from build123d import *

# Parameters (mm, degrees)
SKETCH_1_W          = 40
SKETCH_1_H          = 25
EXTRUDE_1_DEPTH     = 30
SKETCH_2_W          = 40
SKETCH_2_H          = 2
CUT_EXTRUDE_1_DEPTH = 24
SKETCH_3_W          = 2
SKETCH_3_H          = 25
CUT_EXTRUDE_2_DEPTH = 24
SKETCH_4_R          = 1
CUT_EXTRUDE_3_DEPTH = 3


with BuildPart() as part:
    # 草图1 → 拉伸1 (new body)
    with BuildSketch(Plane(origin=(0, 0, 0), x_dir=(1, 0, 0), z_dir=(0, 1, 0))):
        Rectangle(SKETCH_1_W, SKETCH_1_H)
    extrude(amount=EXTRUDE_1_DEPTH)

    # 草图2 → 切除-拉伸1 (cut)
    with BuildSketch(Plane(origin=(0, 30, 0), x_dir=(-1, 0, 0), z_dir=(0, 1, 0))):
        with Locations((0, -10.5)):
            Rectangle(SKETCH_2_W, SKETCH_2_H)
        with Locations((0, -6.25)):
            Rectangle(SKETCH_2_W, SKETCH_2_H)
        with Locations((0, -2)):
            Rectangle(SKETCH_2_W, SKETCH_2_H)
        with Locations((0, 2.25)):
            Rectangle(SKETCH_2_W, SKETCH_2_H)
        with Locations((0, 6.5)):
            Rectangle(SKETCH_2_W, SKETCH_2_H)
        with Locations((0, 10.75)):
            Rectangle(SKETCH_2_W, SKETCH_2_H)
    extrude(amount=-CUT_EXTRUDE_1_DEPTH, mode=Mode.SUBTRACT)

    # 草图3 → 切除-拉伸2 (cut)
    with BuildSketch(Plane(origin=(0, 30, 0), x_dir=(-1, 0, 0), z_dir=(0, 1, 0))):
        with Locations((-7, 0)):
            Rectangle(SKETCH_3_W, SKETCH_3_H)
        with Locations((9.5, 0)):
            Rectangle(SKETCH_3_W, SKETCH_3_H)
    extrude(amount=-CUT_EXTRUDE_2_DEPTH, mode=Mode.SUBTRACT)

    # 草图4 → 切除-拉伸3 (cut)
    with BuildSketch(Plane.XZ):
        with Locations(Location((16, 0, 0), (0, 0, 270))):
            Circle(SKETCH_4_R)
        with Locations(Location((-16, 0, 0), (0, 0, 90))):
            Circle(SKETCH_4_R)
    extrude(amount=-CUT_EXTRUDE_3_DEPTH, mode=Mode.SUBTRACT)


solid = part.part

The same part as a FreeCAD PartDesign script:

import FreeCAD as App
import Part
import Sketcher
from FreeCAD import Vector
Q = App.Units.Quantity


def add_polygon(sketch, points):
    """Adds a closed chain of lines whose ends are joined by coincident constraints."""
    first, n = sketch.GeometryCount, len(points)
    for a, b in zip(points, points[1:] + points[:1]):
        sketch.addGeometry(Part.LineSegment(App.Vector(*a, 0), App.Vector(*b, 0)), False)
    for i in range(n):
        sketch.addConstraint(Sketcher.Constraint("Coincident", first + i, 2, first + (i + 1) % n, 1))

doc = App.newDocument("Part")
body = doc.addObject("PartDesign::Body", "Body")

sketch1 = doc.addObject("Sketcher::SketchObject", "Sketch")
body.addObject(sketch1)
sketch1.AttachmentSupport = (doc.XZ_Plane, [""])
sketch1.MapMode = "FlatFace"
add_polygon(sketch1, [(-20, -12), (-20, 12), (20, 12), (20, -12)])
sketch1.addConstraint([
    Sketcher.Constraint("Vertical", 0),
    Sketcher.Constraint("Horizontal", 1),
    Sketcher.Constraint("Vertical", 2),
    Sketcher.Constraint("Horizontal", 3),
    Sketcher.Constraint("Symmetric", 0, 2, 2, 2, -1, 1),
    Sketcher.Constraint("DistanceX", 1, 1, 1, 2, Q("40 mm")),
    Sketcher.Constraint("DistanceY", 0, 1, 0, 2, Q("25 mm")),
])
pad1 = doc.addObject("PartDesign::Pad", "Pad")
body.addObject(pad1)
pad1.Profile = sketch1
pad1.Length = 30
pad1.Reversed = True

sketch2 = doc.addObject("Sketcher::SketchObject", "Sketch001")
body.addObject(sketch2)
sketch2.AttachmentSupport = (doc.XZ_Plane, [""])
sketch2.MapMode = "FlatFace"
sketch2.AttachmentOffset = App.Placement(Vector(0, 0, -30), App.Rotation())
add_polygon(sketch2, [(20, -9.5), (20, -11.5), (-20, -11.5), (-20, -9.5)])
add_polygon(sketch2, [(20, -5.2), (20, -7.2), (-20, -7.2), (-20, -5.2)])
add_polygon(sketch2, [(20, -1), (20, -3), (-20, -3), (-20, -1)])
add_polygon(sketch2, [(20, 3.2), (20, 1.2), (-20, 1.2), (-20, 3.2)])
add_polygon(sketch2, [(20, 7.5), (20, 5.5), (-20, 5.5), (-20, 7.5)])
add_polygon(sketch2, [(20, 11.8), (20, 9.8), (-20, 9.8), (-20, 11.8)])
sketch2.addConstraint([
    Sketcher.Constraint("Vertical", 0),
    Sketcher.Constraint("Horizontal", 1),
    Sketcher.Constraint("Vertical", 2),
    Sketcher.Constraint("Horizontal", 3),
    Sketcher.Constraint("Vertical", 4),
    Sketcher.Constraint("Horizontal", 5),
    Sketcher.Constraint("Vertical", 6),
    Sketcher.Constraint("Horizontal", 7),
    Sketcher.Constraint("Vertical", 8),
    Sketcher.Constraint("Horizontal", 9),
    Sketcher.Constraint("Vertical", 10),
    Sketcher.Constraint("Horizontal", 11),
    Sketcher.Constraint("Vertical", 12),
    Sketcher.Constraint("Horizontal", 13),
    Sketcher.Constraint("Vertical", 14),
    Sketcher.Constraint("Horizontal", 15),
    Sketcher.Constraint("Vertical", 16),
    Sketcher.Constraint("Horizontal", 17),
    Sketcher.Constraint("Vertical", 18),
    Sketcher.Constraint("Horizontal", 19),
    Sketcher.Constraint("Vertical", 20),
    Sketcher.Constraint("Horizontal", 21),
    Sketcher.Constraint("Vertical", 22),
    Sketcher.Constraint("Horizontal", 23),
    Sketcher.Constraint("Vertical", 3, 2, 4, 2),
    Sketcher.Constraint("Vertical", 2, 2, 5, 2),
    Sketcher.Constraint("Vertical", 7, 2, 8, 2),
    Sketcher.Constraint("Vertical", 6, 2, 9, 2),
    Sketcher.Constraint("Vertical", 11, 2, 12, 2),
    Sketcher.Constraint("Vertical", 10, 2, 13, 2),
    Sketcher.Constraint("Vertical", 15, 2, 16, 2),
    Sketcher.Constraint("Vertical", 14, 2, 17, 2),
    Sketcher.Constraint("Vertical", 19, 2, 20, 2),
    Sketcher.Constraint("Vertical", 18, 2, 21, 2),
    Sketcher.Constraint("Equal", 2, 4),
    Sketcher.Constraint("Equal", 6, 8),
    Sketcher.Constraint("Equal", 10, 12),
    Sketcher.Constraint("Equal", 14, 16),
    Sketcher.Constraint("Equal", 18, 20),
    Sketcher.Constraint("DistanceX", 1, 2, 1, 1, Q("40 mm")),
    Sketcher.Constraint("DistanceY", 0, 2, 0, 1, Q("2 mm")),
    Sketcher.Constraint("DistanceX", -1, 1, 0, 2, Q("20 mm")),
    Sketcher.Constraint("DistanceY", 8, 2, -1, 1, Q("3 mm")),
    Sketcher.Constraint("DistanceY", 0, 2, -1, 1, Q("11.5 mm")),
    Sketcher.Constraint("DistanceY", -1, 1, 16, 2, Q("5.5 mm")),
    Sketcher.Constraint("DistanceY", 7, 2, 12, 2, Q("6.5 mm")),
    Sketcher.Constraint("DistanceY", 15, 2, 20, 2, Q("6.5 mm")),
    Sketcher.Constraint("DistanceY", 4, 2, -1, 1, Q("7.25 mm")),
])
pocket1 = doc.addObject("PartDesign::Pocket", "Pocket")
body.addObject(pocket1)
pocket1.Profile = sketch2
pocket1.Length = 24
pocket1.Reversed = True

sketch3 = doc.addObject("Sketcher::SketchObject", "Sketch002")
body.addObject(sketch3)
sketch3.AttachmentSupport = (doc.XZ_Plane, [""])
sketch3.MapMode = "FlatFace"
sketch3.AttachmentOffset = App.Placement(Vector(0, 0, -30), App.Rotation())
add_polygon(sketch3, [(8, 12.5), (8, -12.5), (6, -12.5), (6, 12.5)])
add_polygon(sketch3, [(-8.5, 12.5), (-8.5, -12.5), (-10.5, -12.5), (-10.5, 12.5)])
sketch3.addConstraint([
    Sketcher.Constraint("Vertical", 0),
    Sketcher.Constraint("Horizontal", 1),
    Sketcher.Constraint("Vertical", 2),
    Sketcher.Constraint("Horizontal", 3),
    Sketcher.Constraint("Vertical", 4),
    Sketcher.Constraint("Horizontal", 5),
    Sketcher.Constraint("Vertical", 6),
    Sketcher.Constraint("Horizontal", 7),
    Sketcher.Constraint("Horizontal", 1, 2, 4, 2),
    Sketcher.Constraint("Horizontal", 3, 2, 6, 2),
    Sketcher.Constraint("Equal", 3, 5),
    Sketcher.Constraint("DistanceX", 1, 2, 1, 1, Q("2 mm")),
    Sketcher.Constraint("DistanceY", 0, 2, 0, 1, Q("25 mm")),
    Sketcher.Constraint("DistanceX", -1, 1, 0, 2, Q("8 mm")),
    Sketcher.Constraint("DistanceY", 0, 2, -1, 1, Q("12.5 mm")),
    Sketcher.Constraint("DistanceX", 4, 2, -1, 1, Q("8.5 mm")),
])
pocket2 = doc.addObject("PartDesign::Pocket", "Pocket001")
body.addObject(pocket2)
pocket2.Profile = sketch3
pocket2.Length = 24
pocket2.Reversed = True

sketch4 = doc.addObject("Sketcher::SketchObject", "Sketch003")
body.addObject(sketch4)
sketch4.AttachmentSupport = (doc.XZ_Plane, [""])
sketch4.MapMode = "FlatFace"
sketch4.addGeometry([
    Part.Circle(Vector(16, 0, 0), Vector(0, 0, 1), 1),
    Part.Circle(Vector(-16, 0, 0), Vector(0, 0, 1), 1),
], False)
sketch4.addConstraint([
    Sketcher.Constraint("Equal", 0, 1),
    Sketcher.Constraint("Symmetric", 0, 3, 1, 3, -1, 1),
    Sketcher.Constraint("PointOnObject", 0, 3, -1),
    Sketcher.Constraint("Diameter", 0, Q("2 mm")),
    Sketcher.Constraint("DistanceX", -1, 1, 0, 3, Q("16 mm")),
])
pocket3 = doc.addObject("PartDesign::Pocket", "Pocket002")
body.addObject(pocket3)
pocket3.Profile = sketch4
pocket3.Length = 3

doc.recompute()
